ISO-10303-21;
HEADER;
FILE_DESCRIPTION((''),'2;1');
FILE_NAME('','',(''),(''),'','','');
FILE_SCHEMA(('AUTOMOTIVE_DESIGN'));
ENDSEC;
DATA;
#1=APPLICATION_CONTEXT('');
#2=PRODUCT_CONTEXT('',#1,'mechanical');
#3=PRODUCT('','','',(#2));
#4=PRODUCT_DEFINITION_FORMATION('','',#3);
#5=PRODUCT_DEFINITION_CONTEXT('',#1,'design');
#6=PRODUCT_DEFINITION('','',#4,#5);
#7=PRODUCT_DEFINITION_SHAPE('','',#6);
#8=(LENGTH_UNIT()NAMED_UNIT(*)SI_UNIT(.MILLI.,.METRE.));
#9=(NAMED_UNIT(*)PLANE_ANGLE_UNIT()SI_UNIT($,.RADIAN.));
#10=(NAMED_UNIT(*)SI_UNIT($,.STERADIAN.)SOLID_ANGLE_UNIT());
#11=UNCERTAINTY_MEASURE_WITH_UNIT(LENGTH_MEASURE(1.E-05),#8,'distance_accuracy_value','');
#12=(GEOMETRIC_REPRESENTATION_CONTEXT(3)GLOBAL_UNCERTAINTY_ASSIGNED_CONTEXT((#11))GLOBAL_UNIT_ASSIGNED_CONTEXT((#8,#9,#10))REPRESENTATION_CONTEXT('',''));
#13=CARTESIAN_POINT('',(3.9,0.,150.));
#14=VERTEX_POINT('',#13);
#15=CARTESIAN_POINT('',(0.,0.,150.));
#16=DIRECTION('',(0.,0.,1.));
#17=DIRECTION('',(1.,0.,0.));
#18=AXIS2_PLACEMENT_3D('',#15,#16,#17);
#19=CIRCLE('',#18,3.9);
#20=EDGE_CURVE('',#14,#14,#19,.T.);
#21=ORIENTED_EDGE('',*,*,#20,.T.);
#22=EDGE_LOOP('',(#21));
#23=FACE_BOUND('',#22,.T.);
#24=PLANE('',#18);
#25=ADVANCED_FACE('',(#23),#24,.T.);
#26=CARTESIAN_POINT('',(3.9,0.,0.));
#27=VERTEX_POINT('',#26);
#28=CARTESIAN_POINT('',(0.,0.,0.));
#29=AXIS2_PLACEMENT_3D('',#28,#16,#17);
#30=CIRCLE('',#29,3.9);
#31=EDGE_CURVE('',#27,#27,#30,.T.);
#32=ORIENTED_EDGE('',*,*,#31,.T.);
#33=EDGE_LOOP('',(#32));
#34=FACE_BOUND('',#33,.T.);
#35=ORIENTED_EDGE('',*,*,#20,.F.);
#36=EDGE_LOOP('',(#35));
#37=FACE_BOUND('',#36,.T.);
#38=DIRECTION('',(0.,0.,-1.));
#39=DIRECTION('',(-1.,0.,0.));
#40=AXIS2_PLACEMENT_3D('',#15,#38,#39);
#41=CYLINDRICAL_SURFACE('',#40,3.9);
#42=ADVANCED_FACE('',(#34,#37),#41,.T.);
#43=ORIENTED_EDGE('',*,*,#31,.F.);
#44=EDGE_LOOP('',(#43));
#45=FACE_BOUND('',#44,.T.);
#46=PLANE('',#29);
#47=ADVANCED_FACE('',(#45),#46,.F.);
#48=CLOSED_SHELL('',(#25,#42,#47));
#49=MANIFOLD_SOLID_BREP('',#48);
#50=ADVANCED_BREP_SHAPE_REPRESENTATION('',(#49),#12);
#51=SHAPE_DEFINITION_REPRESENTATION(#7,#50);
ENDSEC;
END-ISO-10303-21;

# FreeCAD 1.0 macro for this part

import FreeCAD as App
import Part
import Sketcher

doc = App.newDocument("Part")
body = doc.addObject("PartDesign::Body", "Body")

# Sketch on XY plane
sketch1 = body.newObject("Sketcher::SketchObject", "Sketch")
sketch1.AttachmentSupport = (doc.getObject("XY_Plane"), [""])
sketch1.MapMode = "FlatFace"
sketch1.addGeometry(Part.Circle(App.Vector(0, 0, 0), App.Vector(0, 0, 1), 3.9), False)
sketch1.addConstraint([
    Sketcher.Constraint("Coincident", 0, 3, -1, 1),
    Sketcher.Constraint("Diameter", 0, 7.8),
])
pad1 = body.newObject("PartDesign::Pad", "Pad")
pad1.Profile = sketch1
pad1.Length = 150

doc.recompute()
